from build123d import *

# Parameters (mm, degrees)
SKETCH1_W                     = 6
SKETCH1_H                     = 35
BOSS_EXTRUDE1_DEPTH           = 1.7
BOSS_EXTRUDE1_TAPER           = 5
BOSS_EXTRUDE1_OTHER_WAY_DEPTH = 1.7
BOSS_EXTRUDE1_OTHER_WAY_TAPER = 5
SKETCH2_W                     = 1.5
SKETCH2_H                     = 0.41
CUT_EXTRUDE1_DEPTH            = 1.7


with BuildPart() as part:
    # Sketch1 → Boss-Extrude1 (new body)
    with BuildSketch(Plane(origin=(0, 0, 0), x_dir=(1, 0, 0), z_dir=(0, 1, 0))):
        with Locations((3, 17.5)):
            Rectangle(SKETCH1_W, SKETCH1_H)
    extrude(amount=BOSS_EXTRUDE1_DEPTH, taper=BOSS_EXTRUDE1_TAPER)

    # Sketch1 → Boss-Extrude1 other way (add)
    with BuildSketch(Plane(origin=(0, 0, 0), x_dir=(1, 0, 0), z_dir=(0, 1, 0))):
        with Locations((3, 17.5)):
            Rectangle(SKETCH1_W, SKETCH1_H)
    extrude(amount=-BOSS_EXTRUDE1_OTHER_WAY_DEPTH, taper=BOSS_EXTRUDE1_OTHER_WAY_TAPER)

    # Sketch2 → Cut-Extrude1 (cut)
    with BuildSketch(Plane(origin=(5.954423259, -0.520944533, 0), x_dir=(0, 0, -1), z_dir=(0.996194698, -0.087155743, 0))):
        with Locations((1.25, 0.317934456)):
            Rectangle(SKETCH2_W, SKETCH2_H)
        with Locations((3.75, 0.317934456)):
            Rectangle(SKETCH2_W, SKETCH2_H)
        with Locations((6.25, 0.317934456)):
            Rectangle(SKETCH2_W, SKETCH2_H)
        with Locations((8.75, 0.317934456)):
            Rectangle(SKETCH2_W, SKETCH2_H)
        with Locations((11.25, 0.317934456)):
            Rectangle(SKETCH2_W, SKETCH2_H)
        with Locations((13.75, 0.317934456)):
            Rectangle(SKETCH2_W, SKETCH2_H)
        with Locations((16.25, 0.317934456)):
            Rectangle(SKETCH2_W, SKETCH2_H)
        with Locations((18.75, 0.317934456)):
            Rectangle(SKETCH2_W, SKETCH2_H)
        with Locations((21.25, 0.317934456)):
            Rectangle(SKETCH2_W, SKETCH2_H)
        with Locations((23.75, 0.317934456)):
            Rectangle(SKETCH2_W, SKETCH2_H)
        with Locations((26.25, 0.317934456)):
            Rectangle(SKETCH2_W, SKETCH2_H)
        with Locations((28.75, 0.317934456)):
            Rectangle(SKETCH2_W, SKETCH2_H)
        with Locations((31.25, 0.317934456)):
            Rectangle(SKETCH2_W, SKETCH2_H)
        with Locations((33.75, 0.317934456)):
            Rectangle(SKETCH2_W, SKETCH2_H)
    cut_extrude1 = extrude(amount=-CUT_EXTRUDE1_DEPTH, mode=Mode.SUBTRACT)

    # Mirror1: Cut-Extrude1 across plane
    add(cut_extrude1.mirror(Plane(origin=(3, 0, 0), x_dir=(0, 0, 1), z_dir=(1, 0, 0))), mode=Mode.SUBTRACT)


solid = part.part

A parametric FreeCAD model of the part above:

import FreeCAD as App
import Part
import Sketcher
from FreeCAD import Vector
Q = App.Units.Quantity

doc = App.newDocument("Part")
params = doc.addObject("Spreadsheet::Sheet", "Params")
for row, (alias, value) in enumerate([
    ("sketch1_width", "6 mm"),
    ("sketch1_height", "35 mm"),
    ("pad1_length", "1.7 mm"),
    ("pad1_taper", "-5 deg"),
    ("sketch2_width", "6 mm"),
    ("sketch2_height", "35 mm"),
    ("pad2_length", "1.7 mm"),
    ("pad2_taper", "-5 deg"),
    ("sketch3_width", "1.5 mm"),
    ("sketch3_height", "0.41 mm"),
    ("pocket1_length", "1.7 mm"),
], start=1):
    params.set(f"A{row}", alias)
    params.set(f"B{row}", "=" + value)
    params.setAlias(f"B{row}", alias)

body = doc.addObject("PartDesign::Body", "Body")

# Sketch on XZ plane
sketch1 = body.newObject("Sketcher::SketchObject", "Sketch")
sketch1.AttachmentSupport = (doc.getObject("XZ_Plane"), [""])
sketch1.MapMode = "FlatFace"
sketch1.addGeometry(Part.LineSegment(Vector(0, -35, 0), Vector(0, 0, 0)), False)
sketch1.addGeometry(Part.LineSegment(Vector(0, 0, 0), Vector(6, 0, 0)), False)
sketch1.addGeometry(Part.LineSegment(Vector(6, 0, 0), Vector(6, -35, 0)), False)
sketch1.addGeometry(Part.LineSegment(Vector(6, -35, 0), Vector(0, -35, 0)), False)
sketch1.addConstraint(Sketcher.Constraint("Coincident", 0, 2, 1, 1))
sketch1.addConstraint(Sketcher.Constraint("Coincident", 1, 2, 2, 1))
sketch1.addConstraint(Sketcher.Constraint("Coincident", 2, 2, 3, 1))
sketch1.addConstraint(Sketcher.Constraint("Coincident", 3, 2, 0, 1))
sketch1.addConstraint(Sketcher.Constraint("Vertical", 0))
sketch1.addConstraint(Sketcher.Constraint("Horizontal", 1))
sketch1.addConstraint(Sketcher.Constraint("Vertical", 2))
sketch1.addConstraint(Sketcher.Constraint("Horizontal", 3))
sketch1.addConstraint(Sketcher.Constraint("Coincident", 0, 2, -1, 1))
sketch1.addConstraint(Sketcher.Constraint("DistanceX", 1, 1, 1, 2, Q("6 mm")))
sketch1.addConstraint(Sketcher.Constraint("DistanceY", 0, 1, 0, 2, Q("35 mm")))
sketch1.setExpression("Constraints[9]", "Params.sketch1_width")
sketch1.setExpression("Constraints[10]", "Params.sketch1_height")
pad1 = body.newObject("PartDesign::Pad", "Pad")
pad1.Profile = sketch1
pad1.setExpression("Length", "Params.pad1_length")
pad1.Reversed = True
pad1.setExpression("TaperAngle", "Params.pad1_taper")

# Sketch on XZ plane
sketch2 = body.newObject("Sketcher::SketchObject", "Sketch001")
sketch2.AttachmentSupport = (doc.getObject("XZ_Plane"), [""])
sketch2.MapMode = "FlatFace"
sketch2.addGeometry(Part.LineSegment(Vector(0, -35, 0), Vector(0, 0, 0)), False)
sketch2.addGeometry(Part.LineSegment(Vector(0, 0, 0), Vector(6, 0, 0)), False)
sketch2.addGeometry(Part.LineSegment(Vector(6, 0, 0), Vector(6, -35, 0)), False)
sketch2.addGeometry(Part.LineSegment(Vector(6, -35, 0), Vector(0, -35, 0)), False)
sketch2.addConstraint(Sketcher.Constraint("Coincident", 0, 2, 1, 1))
sketch2.addConstraint(Sketcher.Constraint("Coincident", 1, 2, 2, 1))
sketch2.addConstraint(Sketcher.Constraint("Coincident", 2, 2, 3, 1))
sketch2.addConstraint(Sketcher.Constraint("Coincident", 3, 2, 0, 1))
sketch2.addConstraint(Sketcher.Constraint("Vertical", 0))
sketch2.addConstraint(Sketcher.Constraint("Horizontal", 1))
sketch2.addConstraint(Sketcher.Constraint("Vertical", 2))
sketch2.addConstraint(Sketcher.Constraint("Horizontal", 3))
sketch2.addConstraint(Sketcher.Constraint("Coincident", 0, 2, -1, 1))
sketch2.addConstraint(Sketcher.Constraint("DistanceX", 1, 1, 1, 2, Q("6 mm")))
sketch2.addConstraint(Sketcher.Constraint("DistanceY", 0, 1, 0, 2, Q("35 mm")))
sketch2.setExpression("Constraints[9]", "Params.sketch2_width")
sketch2.setExpression("Constraints[10]", "Params.sketch2_height")
pad2 = body.newObject("PartDesign::Pad", "Pad001")
pad2.Profile = sketch2
pad2.setExpression("Length", "Params.pad2_length")
pad2.setExpression("TaperAngle", "Params.pad2_taper")

# Sketch on an angled plane
sketch3 = body.newObject("Sketcher::SketchObject", "Sketch002")
sketch3.Placement = App.Placement(Vector(5.954423, -0.520945, 0), App.Rotation(Vector(0, 0, -1), Vector(0.087155743, 0.996194698, 0), Vector(0.996194698, -0.087155743, 0), "ZXY"))
sketch3.addGeometry(Part.LineSegment(Vector(0.5, 0.52, 0), Vector(0.5, 0.11, 0)), False)
sketch3.addGeometry(Part.LineSegment(Vector(0.5, 0.11, 0), Vector(2, 0.11, 0)), False)
sketch3.addGeometry(Part.LineSegment(Vector(2, 0.11, 0), Vector(2, 0.52, 0)), False)
sketch3.addGeometry(Part.LineSegment(Vector(2, 0.52, 0), Vector(0.5, 0.52, 0)), False)
sketch3.addGeometry(Part.LineSegment(Vector(3, 0.52, 0), Vector(3, 0.11, 0)), False)
sketch3.addGeometry(Part.LineSegment(Vector(3, 0.11, 0), Vector(4.5, 0.11, 0)), False)
sketch3.addGeometry(Part.LineSegment(Vector(4.5, 0.11, 0), Vector(4.5, 0.52, 0)), False)
sketch3.addGeometry(Part.LineSegment(Vector(4.5, 0.52, 0), Vector(3, 0.52, 0)), False)
sketch3.addGeometry(Part.LineSegment(Vector(5.5, 0.52, 0), Vector(5.5, 0.11, 0)), False)
sketch3.addGeometry(Part.LineSegment(Vector(5.5, 0.11, 0), Vector(7, 0.11, 0)), False)
sketch3.addGeometry(Part.LineSegment(Vector(7, 0.11, 0), Vector(7, 0.52, 0)), False)
sketch3.addGeometry(Part.LineSegment(Vector(7, 0.52, 0), Vector(5.5, 0.52, 0)), False)
sketch3.addGeometry(Part.LineSegment(Vector(8, 0.52, 0), Vector(8, 0.11, 0)), False)
sketch3.addGeometry(Part.LineSegment(Vector(8, 0.11, 0), Vector(9.5, 0.11, 0)), False)
sketch3.addGeometry(Part.LineSegment(Vector(9.5, 0.11, 0), Vector(9.5, 0.52, 0)), False)
sketch3.addGeometry(Part.LineSegment(Vector(9.5, 0.52, 0), Vector(8, 0.52, 0)), False)
sketch3.addGeometry(Part.LineSegment(Vector(10.5, 0.52, 0), Vector(10.5, 0.11, 0)), False)
sketch3.addGeometry(Part.LineSegment(Vector(10.5, 0.11, 0), Vector(12, 0.11, 0)), False)
sketch3.addGeometry(Part.LineSegment(Vector(12, 0.11, 0), Vector(12, 0.52, 0)), False)
sketch3.addGeometry(Part.LineSegment(Vector(12, 0.52, 0), Vector(10.5, 0.52, 0)), False)
sketch3.addGeometry(Part.LineSegment(Vector(13, 0.52, 0), Vector(13, 0.11, 0)), False)
sketch3.addGeometry(Part.LineSegment(Vector(13, 0.11, 0), Vector(14.5, 0.11, 0)), False)
sketch3.addGeometry(Part.LineSegment(Vector(14.5, 0.11, 0), Vector(14.5, 0.52, 0)), False)
sketch3.addGeometry(Part.LineSegment(Vector(14.5, 0.52, 0), Vector(13, 0.52, 0)), False)
sketch3.addGeometry(Part.LineSegment(Vector(15.5, 0.52, 0), Vector(15.5, 0.11, 0)), False)
sketch3.addGeometry(Part.LineSegment(Vector(15.5, 0.11, 0), Vector(17, 0.11, 0)), False)
sketch3.addGeometry(Part.LineSegment(Vector(17, 0.11, 0), Vector(17, 0.52, 0)), False)
sketch3.addGeometry(Part.LineSegment(Vector(17, 0.52, 0), Vector(15.5, 0.52, 0)), False)
sketch3.addGeometry(Part.LineSegment(Vector(18, 0.52, 0), Vector(18, 0.11, 0)), False)
sketch3.addGeometry(Part.LineSegment(Vector(18, 0.11, 0), Vector(19.5, 0.11, 0)), False)
sketch3.addGeometry(Part.LineSegment(Vector(19.5, 0.11, 0), Vector(19.5, 0.52, 0)), False)
sketch3.addGeometry(Part.LineSegment(Vector(19.5, 0.52, 0), Vector(18, 0.52, 0)), False)
sketch3.addGeometry(Part.LineSegment(Vector(20.5, 0.52, 0), Vector(20.5, 0.11, 0)), False)
sketch3.addGeometry(Part.LineSegment(Vector(20.5, 0.11, 0), Vector(22, 0.11, 0)), False)
sketch3.addGeometry(Part.LineSegment(Vector(22, 0.11, 0), Vector(22, 0.52, 0)), False)
sketch3.addGeometry(Part.LineSegment(Vector(22, 0.52, 0), Vector(20.5, 0.52, 0)), False)
sketch3.addGeometry(Part.LineSegment(Vector(23, 0.52, 0), Vector(23, 0.11, 0)), False)
sketch3.addGeometry(Part.LineSegment(Vector(23, 0.11, 0), Vector(24.5, 0.11, 0)), False)
sketch3.addGeometry(Part.LineSegment(Vector(24.5, 0.11, 0), Vector(24.5, 0.52, 0)), False)
sketch3.addGeometry(Part.LineSegment(Vector(24.5, 0.52, 0), Vector(23, 0.52, 0)), False)
sketch3.addGeometry(Part.LineSegment(Vector(25.5, 0.52, 0), Vector(25.5, 0.11, 0)), False)
sketch3.addGeometry(Part.LineSegment(Vector(25.5, 0.11, 0), Vector(27, 0.11, 0)), False)
sketch3.addGeometry(Part.LineSegment(Vector(27, 0.11, 0), Vector(27, 0.52, 0)), False)
sketch3.addGeometry(Part.LineSegment(Vector(27, 0.52, 0), Vector(25.5, 0.52, 0)), False)
sketch3.addGeometry(Part.LineSegment(Vector(28, 0.52, 0), Vector(28, 0.11, 0)), False)
sketch3.addGeometry(Part.LineSegment(Vector(28, 0.11, 0), Vector(29.5, 0.11, 0)), False)
sketch3.addGeometry(Part.LineSegment(Vector(29.5, 0.11, 0), Vector(29.5, 0.52, 0)), False)
sketch3.addGeometry(Part.LineSegment(Vector(29.5, 0.52, 0), Vector(28, 0.52, 0)), False)
sketch3.addGeometry(Part.LineSegment(Vector(30.5, 0.52, 0), Vector(30.5, 0.11, 0)), False)
sketch3.addGeometry(Part.LineSegment(Vector(30.5, 0.11, 0), Vector(32, 0.11, 0)), False)
sketch3.addGeometry(Part.LineSegment(Vector(32, 0.11, 0), Vector(32, 0.52, 0)), False)
sketch3.addGeometry(Part.LineSegment(Vector(32, 0.52, 0), Vector(30.5, 0.52, 0)), False)
sketch3.addGeometry(Part.LineSegment(Vector(33, 0.52, 0), Vector(33, 0.11, 0)), False)
sketch3.addGeometry(Part.LineSegment(Vector(33, 0.11, 0), Vector(34.5, 0.11, 0)), False)
sketch3.addGeometry(Part.LineSegment(Vector(34.5, 0.11, 0), Vector(34.5, 0.52, 0)), False)
sketch3.addGeometry(Part.LineSegment(Vector(34.5, 0.52, 0), Vector(33, 0.52, 0)), False)
sketch3.addConstraint(Sketcher.Constraint("Coincident", 0, 2, 1, 1))
sketch3.addConstraint(Sketcher.Constraint("Coincident", 1, 2, 2, 1))
sketch3.addConstraint(Sketcher.Constraint("Coincident", 2, 2, 3, 1))
sketch3.addConstraint(Sketcher.Constraint("Coincident", 3, 2, 0, 1))
sketch3.addConstraint(Sketcher.Constraint("Coincident", 4, 2, 5, 1))
sketch3.addConstraint(Sketcher.Constraint("Coincident", 5, 2, 6, 1))
sketch3.addConstraint(Sketcher.Constraint("Coincident", 6, 2, 7, 1))
sketch3.addConstraint(Sketcher.Constraint("Coincident", 7, 2, 4, 1))
sketch3.addConstraint(Sketcher.Constraint("Coincident", 8, 2, 9, 1))
sketch3.addConstraint(Sketcher.Constraint("Coincident", 9, 2, 10, 1))
sketch3.addConstraint(Sketcher.Constraint("Coincident", 10, 2, 11, 1))
sketch3.addConstraint(Sketcher.Constraint("Coincident", 11, 2, 8, 1))
sketch3.addConstraint(Sketcher.Constraint("Coincident", 12, 2, 13, 1))
sketch3.addConstraint(Sketcher.Constraint("Coincident", 13, 2, 14, 1))
sketch3.addConstraint(Sketcher.Constraint("Coincident", 14, 2, 15, 1))
sketch3.addConstraint(Sketcher.Constraint("Coincident", 15, 2, 12, 1))
sketch3.addConstraint(Sketcher.Constraint("Coincident", 16, 2, 17, 1))
sketch3.addConstraint(Sketcher.Constraint("Coincident", 17, 2, 18, 1))
sketch3.addConstraint(Sketcher.Constraint("Coincident", 18, 2, 19, 1))
sketch3.addConstraint(Sketcher.Constraint("Coincident", 19, 2, 16, 1))
sketch3.addConstraint(Sketcher.Constraint("Coincident", 20, 2, 21, 1))
sketch3.addConstraint(Sketcher.Constraint("Coincident", 21, 2, 22, 1))
sketch3.addConstraint(Sketcher.Constraint("Coincident", 22, 2, 23, 1))
sketch3.addConstraint(Sketcher.Constraint("Coincident", 23, 2, 20, 1))
sketch3.addConstraint(Sketcher.Constraint("Coincident", 24, 2, 25, 1))
sketch3.addConstraint(Sketcher.Constraint("Coincident", 25, 2, 26, 1))
sketch3.addConstraint(Sketcher.Constraint("Coincident", 26, 2, 27, 1))
sketch3.addConstraint(Sketcher.Constraint("Coincident", 27, 2, 24, 1))
sketch3.addConstraint(Sketcher.Constraint("Coincident", 28, 2, 29, 1))
sketch3.addConstraint(Sketcher.Constraint("Coincident", 29, 2, 30, 1))
sketch3.addConstraint(Sketcher.Constraint("Coincident", 30, 2, 31, 1))
sketch3.addConstraint(Sketcher.Constraint("Coincident", 31, 2, 28, 1))
sketch3.addConstraint(Sketcher.Constraint("Coincident", 32, 2, 33, 1))
sketch3.addConstraint(Sketcher.Constraint("Coincident", 33, 2, 34, 1))
sketch3.addConstraint(Sketcher.Constraint("Coincident", 34, 2, 35, 1))
sketch3.addConstraint(Sketcher.Constraint("Coincident", 35, 2, 32, 1))
sketch3.addConstraint(Sketcher.Constraint("Coincident", 36, 2, 37, 1))
sketch3.addConstraint(Sketcher.Constraint("Coincident", 37, 2, 38, 1))
sketch3.addConstraint(Sketcher.Constraint("Coincident", 38, 2, 39, 1))
sketch3.addConstraint(Sketcher.Constraint("Coincident", 39, 2, 36, 1))
sketch3.addConstraint(Sketcher.Constraint("Coincident", 40, 2, 41, 1))
sketch3.addConstraint(Sketcher.Constraint("Coincident", 41, 2, 42, 1))
sketch3.addConstraint(Sketcher.Constraint("Coincident", 42, 2, 43, 1))
sketch3.addConstraint(Sketcher.Constraint("Coincident", 43, 2, 40, 1))
sketch3.addConstraint(Sketcher.Constraint("Coincident", 44, 2, 45, 1))
sketch3.addConstraint(Sketcher.Constraint("Coincident", 45, 2, 46, 1))
sketch3.addConstraint(Sketcher.Constraint("Coincident", 46, 2, 47, 1))
sketch3.addConstraint(Sketcher.Constraint("Coincident", 47, 2, 44, 1))
sketch3.addConstraint(Sketcher.Constraint("Coincident", 48, 2, 49, 1))
sketch3.addConstraint(Sketcher.Constraint("Coincident", 49, 2, 50, 1))
sketch3.addConstraint(Sketcher.Constraint("Coincident", 50, 2, 51, 1))
sketch3.addConstraint(Sketcher.Constraint("Coincident", 51, 2, 48, 1))
sketch3.addConstraint(Sketcher.Constraint("Coincident", 52, 2, 53, 1))
sketch3.addConstraint(Sketcher.Constraint("Coincident", 53, 2, 54, 1))
sketch3.addConstraint(Sketcher.Constraint("Coincident", 54, 2, 55, 1))
sketch3.addConstraint(Sketcher.Constraint("Coincident", 55, 2, 52, 1))
sketch3.addConstraint(Sketcher.Constraint("Vertical", 0))
sketch3.addConstraint(Sketcher.Constraint("Horizontal", 1))
sketch3.addConstraint(Sketcher.Constraint("Vertical", 2))
sketch3.addConstraint(Sketcher.Constraint("Horizontal", 3))
sketch3.addConstraint(Sketcher.Constraint("Vertical", 4))
sketch3.addConstraint(Sketcher.Constraint("Horizontal", 5))
sketch3.addConstraint(Sketcher.Constraint("Vertical", 6))
sketch3.addConstraint(Sketcher.Constraint("Horizontal", 7))
sketch3.addConstraint(Sketcher.Constraint("Vertical", 8))
sketch3.addConstraint(Sketcher.Constraint("Horizontal", 9))
sketch3.addConstraint(Sketcher.Constraint("Vertical", 10))
sketch3.addConstraint(Sketcher.Constraint("Horizontal", 11))
sketch3.addConstraint(Sketcher.Constraint("Vertical", 12))
sketch3.addConstraint(Sketcher.Constraint("Horizontal", 13))
sketch3.addConstraint(Sketcher.Constraint("Vertical", 14))
sketch3.addConstraint(Sketcher.Constraint("Horizontal", 15))
sketch3.addConstraint(Sketcher.Constraint("Vertical", 16))
sketch3.addConstraint(Sketcher.Constraint("Horizontal", 17))
sketch3.addConstraint(Sketcher.Constraint("Vertical", 18))
sketch3.addConstraint(Sketcher.Constraint("Horizontal", 19))
sketch3.addConstraint(Sketcher.Constraint("Vertical", 20))
sketch3.addConstraint(Sketcher.Constraint("Horizontal", 21))
sketch3.addConstraint(Sketcher.Constraint("Vertical", 22))
sketch3.addConstraint(Sketcher.Constraint("Horizontal", 23))
sketch3.addConstraint(Sketcher.Constraint("Vertical", 24))
sketch3.addConstraint(Sketcher.Constraint("Horizontal", 25))
sketch3.addConstraint(Sketcher.Constraint("Vertical", 26))
sketch3.addConstraint(Sketcher.Constraint("Horizontal", 27))
sketch3.addConstraint(Sketcher.Constraint("Vertical", 28))
sketch3.addConstraint(Sketcher.Constraint("Horizontal", 29))
sketch3.addConstraint(Sketcher.Constraint("Vertical", 30))
sketch3.addConstraint(Sketcher.Constraint("Horizontal", 31))
sketch3.addConstraint(Sketcher.Constraint("Vertical", 32))
sketch3.addConstraint(Sketcher.Constraint("Horizontal", 33))
sketch3.addConstraint(Sketcher.Constraint("Vertical", 34))
sketch3.addConstraint(Sketcher.Constraint("Horizontal", 35))
sketch3.addConstraint(Sketcher.Constraint("Vertical", 36))
sketch3.addConstraint(Sketcher.Constraint("Horizontal", 37))
sketch3.addConstraint(Sketcher.Constraint("Vertical", 38))
sketch3.addConstraint(Sketcher.Constraint("Horizontal", 39))
sketch3.addConstraint(Sketcher.Constraint("Vertical", 40))
sketch3.addConstraint(Sketcher.Constraint("Horizontal", 41))
sketch3.addConstraint(Sketcher.Constraint("Vertical", 42))
sketch3.addConstraint(Sketcher.Constraint("Horizontal", 43))
sketch3.addConstraint(Sketcher.Constraint("Vertical", 44))
sketch3.addConstraint(Sketcher.Constraint("Horizontal", 45))
sketch3.addConstraint(Sketcher.Constraint("Vertical", 46))
sketch3.addConstraint(Sketcher.Constraint("Horizontal", 47))
sketch3.addConstraint(Sketcher.Constraint("Vertical", 48))
sketch3.addConstraint(Sketcher.Constraint("Horizontal", 49))
sketch3.addConstraint(Sketcher.Constraint("Vertical", 50))
sketch3.addConstraint(Sketcher.Constraint("Horizontal", 51))
sketch3.addConstraint(Sketcher.Constraint("Vertical", 52))
sketch3.addConstraint(Sketcher.Constraint("Horizontal", 53))
sketch3.addConstraint(Sketcher.Constraint("Vertical", 54))
sketch3.addConstraint(Sketcher.Constraint("Horizontal", 55))
sketch3.addConstraint(Sketcher.Constraint("Horizontal", 1, 2, 4, 2))
sketch3.addConstraint(Sketcher.Constraint("Horizontal", 3, 2, 6, 2))
sketch3.addConstraint(Sketcher.Constraint("Horizontal", 5, 2, 8, 2))
sketch3.addConstraint(Sketcher.Constraint("Horizontal", 7, 2, 10, 2))
sketch3.addConstraint(Sketcher.Constraint("Horizontal", 9, 2, 12, 2))
sketch3.addConstraint(Sketcher.Constraint("Horizontal", 11, 2, 14, 2))
sketch3.addConstraint(Sketcher.Constraint("Horizontal", 13, 2, 16, 2))
sketch3.addConstraint(Sketcher.Constraint("Horizontal", 15, 2, 18, 2))
sketch3.addConstraint(Sketcher.Constraint("Horizontal", 17, 2, 20, 2))
sketch3.addConstraint(Sketcher.Constraint("Horizontal", 19, 2, 22, 2))
sketch3.addConstraint(Sketcher.Constraint("Horizontal", 21, 2, 24, 2))
sketch3.addConstraint(Sketcher.Constraint("Horizontal", 23, 2, 26, 2))
sketch3.addConstraint(Sketcher.Constraint("Horizontal", 25, 2, 28, 2))
sketch3.addConstraint(Sketcher.Constraint("Horizontal", 27, 2, 30, 2))
sketch3.addConstraint(Sketcher.Constraint("Horizontal", 29, 2, 32, 2))
sketch3.addConstraint(Sketcher.Constraint("Horizontal", 31, 2, 34, 2))
sketch3.addConstraint(Sketcher.Constraint("Horizontal", 33, 2, 36, 2))
sketch3.addConstraint(Sketcher.Constraint("Horizontal", 35, 2, 38, 2))
sketch3.addConstraint(Sketcher.Constraint("Horizontal", 37, 2, 40, 2))
sketch3.addConstraint(Sketcher.Constraint("Horizontal", 39, 2, 42, 2))
sketch3.addConstraint(Sketcher.Constraint("Horizontal", 41, 2, 44, 2))
sketch3.addConstraint(Sketcher.Constraint("Horizontal", 43, 2, 46, 2))
sketch3.addConstraint(Sketcher.Constraint("Horizontal", 45, 2, 48, 2))
sketch3.addConstraint(Sketcher.Constraint("Horizontal", 47, 2, 50, 2))
sketch3.addConstraint(Sketcher.Constraint("Horizontal", 49, 2, 52, 2))
sketch3.addConstraint(Sketcher.Constraint("Horizontal", 51, 2, 54, 2))
sketch3.addConstraint(Sketcher.Constraint("Equal", 3, 5))
sketch3.addConstraint(Sketcher.Constraint("Equal", 7, 9))
sketch3.addConstraint(Sketcher.Constraint("Equal", 11, 13))
sketch3.addConstraint(Sketcher.Constraint("Equal", 15, 17))
sketch3.addConstraint(Sketcher.Constraint("Equal", 19, 21))
sketch3.addConstraint(Sketcher.Constraint("Equal", 23, 25))
sketch3.addConstraint(Sketcher.Constraint("Equal", 27, 29))
sketch3.addConstraint(Sketcher.Constraint("Equal", 31, 33))
sketch3.addConstraint(Sketcher.Constraint("Equal", 35, 37))
sketch3.addConstraint(Sketcher.Constraint("Equal", 39, 41))
sketch3.addConstraint(Sketcher.Constraint("Equal", 43, 45))
sketch3.addConstraint(Sketcher.Constraint("Equal", 47, 49))
sketch3.addConstraint(Sketcher.Constraint("Equal", 51, 53))
sketch3.addConstraint(Sketcher.Constraint("DistanceX", 1, 1, 1, 2, Q("1.5 mm")))
sketch3.addConstraint(Sketcher.Constraint("DistanceX", -1, 1, 1, 2, Q("2 mm")))
sketch3.addConstraint(Sketcher.Constraint("DistanceX", -1, 1, 4, 2, Q("3 mm")))
sketch3.addConstraint(Sketcher.Constraint("DistanceX", -1, 1, 9, 2, Q("7 mm")))
sketch3.addConstraint(Sketcher.Constraint("DistanceX", -1, 1, 12, 2, Q("8 mm")))
sketch3.addConstraint(Sketcher.Constraint("DistanceX", -1, 1, 17, 2, Q("12 mm")))
sketch3.addConstraint(Sketcher.Constraint("DistanceX", -1, 1, 20, 2, Q("13 mm")))
sketch3.addConstraint(Sketcher.Constraint("DistanceX", -1, 1, 25, 2, Q("17 mm")))
sketch3.addConstraint(Sketcher.Constraint("DistanceX", -1, 1, 28, 2, Q("18 mm")))
sketch3.addConstraint(Sketcher.Constraint("DistanceX", -1, 1, 33, 2, Q("22 mm")))
sketch3.addConstraint(Sketcher.Constraint("DistanceX", -1, 1, 36, 2, Q("23 mm")))
sketch3.addConstraint(Sketcher.Constraint("DistanceX", -1, 1, 41, 2, Q("27 mm")))
sketch3.addConstraint(Sketcher.Constraint("DistanceX", -1, 1, 44, 2, Q("28 mm")))
sketch3.addConstraint(Sketcher.Constraint("DistanceX", -1, 1, 49, 2, Q("32 mm")))
sketch3.addConstraint(Sketcher.Constraint("DistanceX", -1, 1, 52, 2, Q("33 mm")))
sketch3.addConstraint(Sketcher.Constraint("DistanceY", 0, 2, 0, 1, Q("0.41 mm")))
sketch3.addConstraint(Sketcher.Constraint("DistanceY", -1, 1, 0, 2, Q("0.112934 mm")))
sketch3.setExpression("Constraints[151]", "Params.sketch3_width")
sketch3.setExpression("Constraints[166]", "Params.sketch3_height")
pocket1 = body.newObject("PartDesign::Pocket", "Pocket")
pocket1.Profile = sketch3
pocket1.setExpression("Length", "Params.pocket1_length")
doc.recompute()

datumplane = body.newObject("PartDesign::Plane", "DatumPlane")
datumplane.AttachmentSupport = (doc.getObject("YZ_Plane"), [""])
datumplane.MapMode = "FlatFace"
datumplane.AttachmentOffset = App.Placement(Vector(0, 0, 3), App.Rotation())
mirrored = body.newObject("PartDesign::Mirrored", "Mirrored")
mirrored.Originals = [pocket1]
mirrored.MirrorPlane = (datumplane, [""])
body.Tip = mirrored

doc.recompute()
